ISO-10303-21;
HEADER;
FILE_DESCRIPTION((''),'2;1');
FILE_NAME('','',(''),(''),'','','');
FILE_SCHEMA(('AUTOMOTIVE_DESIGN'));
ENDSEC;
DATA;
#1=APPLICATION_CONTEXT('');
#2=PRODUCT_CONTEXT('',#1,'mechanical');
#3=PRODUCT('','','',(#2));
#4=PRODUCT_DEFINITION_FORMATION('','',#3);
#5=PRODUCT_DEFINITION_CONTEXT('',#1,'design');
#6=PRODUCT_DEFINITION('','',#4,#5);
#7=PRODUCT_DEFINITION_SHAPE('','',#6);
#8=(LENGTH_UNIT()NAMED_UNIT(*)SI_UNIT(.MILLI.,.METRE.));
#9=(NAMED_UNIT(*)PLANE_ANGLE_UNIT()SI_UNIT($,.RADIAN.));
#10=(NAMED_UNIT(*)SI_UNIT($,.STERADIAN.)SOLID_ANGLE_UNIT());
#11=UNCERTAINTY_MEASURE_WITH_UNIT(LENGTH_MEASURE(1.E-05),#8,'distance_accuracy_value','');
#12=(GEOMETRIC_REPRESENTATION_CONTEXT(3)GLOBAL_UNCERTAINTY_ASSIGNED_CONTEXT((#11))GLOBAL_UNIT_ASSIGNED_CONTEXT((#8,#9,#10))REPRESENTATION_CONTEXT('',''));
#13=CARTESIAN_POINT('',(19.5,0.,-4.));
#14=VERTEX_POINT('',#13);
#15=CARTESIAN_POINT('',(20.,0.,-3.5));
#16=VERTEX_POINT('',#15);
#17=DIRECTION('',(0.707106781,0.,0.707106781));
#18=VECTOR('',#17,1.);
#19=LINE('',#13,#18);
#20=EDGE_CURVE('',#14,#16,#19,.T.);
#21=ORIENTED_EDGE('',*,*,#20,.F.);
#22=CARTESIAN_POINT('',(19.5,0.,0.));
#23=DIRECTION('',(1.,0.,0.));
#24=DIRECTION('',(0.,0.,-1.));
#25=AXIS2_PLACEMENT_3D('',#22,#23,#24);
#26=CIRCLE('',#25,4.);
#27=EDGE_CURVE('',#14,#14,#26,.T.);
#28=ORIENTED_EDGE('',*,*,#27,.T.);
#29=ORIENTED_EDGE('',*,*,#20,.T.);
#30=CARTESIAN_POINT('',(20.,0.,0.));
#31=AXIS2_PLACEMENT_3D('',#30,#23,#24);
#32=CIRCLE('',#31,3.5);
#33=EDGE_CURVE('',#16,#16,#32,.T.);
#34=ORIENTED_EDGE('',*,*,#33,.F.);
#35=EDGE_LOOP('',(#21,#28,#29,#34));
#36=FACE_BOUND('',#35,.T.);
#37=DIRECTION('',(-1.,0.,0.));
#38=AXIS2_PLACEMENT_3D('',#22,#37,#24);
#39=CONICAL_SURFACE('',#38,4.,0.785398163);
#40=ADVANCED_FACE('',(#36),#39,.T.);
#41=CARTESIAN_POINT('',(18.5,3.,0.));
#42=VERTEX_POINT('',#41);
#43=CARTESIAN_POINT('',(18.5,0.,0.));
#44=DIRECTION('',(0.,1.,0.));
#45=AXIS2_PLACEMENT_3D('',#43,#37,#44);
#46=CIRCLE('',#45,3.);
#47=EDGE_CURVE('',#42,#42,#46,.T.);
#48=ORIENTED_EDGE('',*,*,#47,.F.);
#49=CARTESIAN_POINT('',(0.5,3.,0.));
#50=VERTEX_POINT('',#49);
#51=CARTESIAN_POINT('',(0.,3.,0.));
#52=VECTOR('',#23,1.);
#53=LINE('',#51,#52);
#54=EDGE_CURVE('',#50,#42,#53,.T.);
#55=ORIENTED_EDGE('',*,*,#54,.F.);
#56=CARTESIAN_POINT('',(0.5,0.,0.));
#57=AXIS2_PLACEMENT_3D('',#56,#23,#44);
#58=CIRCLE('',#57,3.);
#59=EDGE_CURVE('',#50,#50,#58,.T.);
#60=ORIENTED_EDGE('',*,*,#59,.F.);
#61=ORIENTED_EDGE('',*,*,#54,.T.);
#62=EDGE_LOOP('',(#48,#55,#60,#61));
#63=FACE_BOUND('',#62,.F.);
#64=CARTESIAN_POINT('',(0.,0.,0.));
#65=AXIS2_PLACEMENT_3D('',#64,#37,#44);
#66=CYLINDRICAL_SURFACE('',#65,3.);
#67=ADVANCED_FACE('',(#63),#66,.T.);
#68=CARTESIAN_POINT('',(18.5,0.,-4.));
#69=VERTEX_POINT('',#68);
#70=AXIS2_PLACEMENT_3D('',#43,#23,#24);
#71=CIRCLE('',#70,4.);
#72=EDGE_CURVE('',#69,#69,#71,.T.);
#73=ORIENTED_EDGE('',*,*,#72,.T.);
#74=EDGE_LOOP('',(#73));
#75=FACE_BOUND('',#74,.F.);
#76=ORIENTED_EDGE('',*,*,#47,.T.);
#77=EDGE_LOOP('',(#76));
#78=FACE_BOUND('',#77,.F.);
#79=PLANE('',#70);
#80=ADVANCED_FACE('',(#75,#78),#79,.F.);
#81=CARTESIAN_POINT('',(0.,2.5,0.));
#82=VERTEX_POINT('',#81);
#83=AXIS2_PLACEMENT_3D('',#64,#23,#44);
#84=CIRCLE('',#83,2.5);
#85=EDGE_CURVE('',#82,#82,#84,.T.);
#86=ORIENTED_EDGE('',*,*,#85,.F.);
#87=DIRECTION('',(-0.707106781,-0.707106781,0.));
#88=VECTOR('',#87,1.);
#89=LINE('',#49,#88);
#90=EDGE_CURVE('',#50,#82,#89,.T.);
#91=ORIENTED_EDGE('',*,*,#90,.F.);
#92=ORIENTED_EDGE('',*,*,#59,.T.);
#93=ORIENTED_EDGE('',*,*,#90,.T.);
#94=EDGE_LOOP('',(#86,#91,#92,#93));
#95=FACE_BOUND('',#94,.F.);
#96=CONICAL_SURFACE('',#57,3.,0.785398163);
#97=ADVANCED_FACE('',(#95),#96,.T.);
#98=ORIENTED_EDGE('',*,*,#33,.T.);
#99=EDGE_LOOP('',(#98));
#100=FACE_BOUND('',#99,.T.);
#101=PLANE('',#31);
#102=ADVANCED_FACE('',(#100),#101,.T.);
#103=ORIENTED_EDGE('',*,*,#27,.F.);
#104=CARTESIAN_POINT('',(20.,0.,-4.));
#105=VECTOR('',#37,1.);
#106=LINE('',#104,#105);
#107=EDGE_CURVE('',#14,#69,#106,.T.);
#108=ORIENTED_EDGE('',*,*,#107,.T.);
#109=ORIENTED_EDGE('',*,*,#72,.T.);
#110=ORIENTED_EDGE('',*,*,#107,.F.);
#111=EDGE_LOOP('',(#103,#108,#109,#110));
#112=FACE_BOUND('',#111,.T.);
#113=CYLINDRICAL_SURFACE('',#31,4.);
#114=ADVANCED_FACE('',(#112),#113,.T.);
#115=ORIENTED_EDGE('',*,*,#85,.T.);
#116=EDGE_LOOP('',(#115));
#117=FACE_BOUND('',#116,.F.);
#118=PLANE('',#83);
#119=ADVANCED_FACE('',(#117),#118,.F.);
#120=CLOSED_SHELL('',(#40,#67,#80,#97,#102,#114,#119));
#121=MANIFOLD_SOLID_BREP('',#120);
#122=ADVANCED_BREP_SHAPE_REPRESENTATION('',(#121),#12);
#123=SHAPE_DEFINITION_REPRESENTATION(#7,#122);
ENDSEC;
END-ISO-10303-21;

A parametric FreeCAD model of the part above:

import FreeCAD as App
import Part
import Sketcher
from FreeCAD import Vector
Q = App.Units.Quantity


def edges_at(feature, points):
    """Names of the edges that pass closest to the given points."""
    edges = feature.Shape.Edges
    near = lambda p: min(range(len(edges)), key=lambda i: edges[i].distToShape(Part.Vertex(*p))[0])
    return sorted({f"Edge{near(p) + 1}" for p in points})

doc = App.newDocument("Part")
body = doc.addObject("PartDesign::Body", "Body")

# Sketch on YZ plane
sketch1 = body.newObject("Sketcher::SketchObject", "Sketch")
sketch1.AttachmentSupport = (doc.getObject("YZ_Plane"), [""])
sketch1.MapMode = "FlatFace"
sketch1.addGeometry(Part.Circle(Vector(0, 0, 0), Vector(0, 0, 1), 3), False)
sketch1.addConstraint([
    Sketcher.Constraint("Coincident", 0, 3, -1, 1),
    Sketcher.Constraint("Diameter", 0, Q("6 mm")),
])
pad1 = body.newObject("PartDesign::Pad", "Pad")
pad1.Profile = sketch1
pad1.Length = 20

# Sketch on YZ plane
sketch2 = body.newObject("Sketcher::SketchObject", "Sketch001")
sketch2.AttachmentSupport = (doc.getObject("YZ_Plane"), [""])
sketch2.MapMode = "FlatFace"
sketch2.AttachmentOffset = App.Placement(Vector(0, 0, 20), App.Rotation())
sketch2.addGeometry(Part.Circle(Vector(0, 0, 0), Vector(0, 0, 1), 4), False)
sketch2.addConstraint([
    Sketcher.Constraint("Coincident", 0, 3, -1, 1),
    Sketcher.Constraint("Diameter", 0, Q("8 mm")),
])
pad2 = body.newObject("PartDesign::Pad", "Pad001")
pad2.Profile = sketch2
pad2.Length = 1.5
pad2.Reversed = True
doc.recompute()

chamfer = body.newObject("PartDesign::Chamfer", "Chamfer")
chamfer.Base = (pad2, edges_at(pad2, [(0, -3, 0), (20, 0, 4)]))
chamfer.Size = 0.5

doc.recompute()
